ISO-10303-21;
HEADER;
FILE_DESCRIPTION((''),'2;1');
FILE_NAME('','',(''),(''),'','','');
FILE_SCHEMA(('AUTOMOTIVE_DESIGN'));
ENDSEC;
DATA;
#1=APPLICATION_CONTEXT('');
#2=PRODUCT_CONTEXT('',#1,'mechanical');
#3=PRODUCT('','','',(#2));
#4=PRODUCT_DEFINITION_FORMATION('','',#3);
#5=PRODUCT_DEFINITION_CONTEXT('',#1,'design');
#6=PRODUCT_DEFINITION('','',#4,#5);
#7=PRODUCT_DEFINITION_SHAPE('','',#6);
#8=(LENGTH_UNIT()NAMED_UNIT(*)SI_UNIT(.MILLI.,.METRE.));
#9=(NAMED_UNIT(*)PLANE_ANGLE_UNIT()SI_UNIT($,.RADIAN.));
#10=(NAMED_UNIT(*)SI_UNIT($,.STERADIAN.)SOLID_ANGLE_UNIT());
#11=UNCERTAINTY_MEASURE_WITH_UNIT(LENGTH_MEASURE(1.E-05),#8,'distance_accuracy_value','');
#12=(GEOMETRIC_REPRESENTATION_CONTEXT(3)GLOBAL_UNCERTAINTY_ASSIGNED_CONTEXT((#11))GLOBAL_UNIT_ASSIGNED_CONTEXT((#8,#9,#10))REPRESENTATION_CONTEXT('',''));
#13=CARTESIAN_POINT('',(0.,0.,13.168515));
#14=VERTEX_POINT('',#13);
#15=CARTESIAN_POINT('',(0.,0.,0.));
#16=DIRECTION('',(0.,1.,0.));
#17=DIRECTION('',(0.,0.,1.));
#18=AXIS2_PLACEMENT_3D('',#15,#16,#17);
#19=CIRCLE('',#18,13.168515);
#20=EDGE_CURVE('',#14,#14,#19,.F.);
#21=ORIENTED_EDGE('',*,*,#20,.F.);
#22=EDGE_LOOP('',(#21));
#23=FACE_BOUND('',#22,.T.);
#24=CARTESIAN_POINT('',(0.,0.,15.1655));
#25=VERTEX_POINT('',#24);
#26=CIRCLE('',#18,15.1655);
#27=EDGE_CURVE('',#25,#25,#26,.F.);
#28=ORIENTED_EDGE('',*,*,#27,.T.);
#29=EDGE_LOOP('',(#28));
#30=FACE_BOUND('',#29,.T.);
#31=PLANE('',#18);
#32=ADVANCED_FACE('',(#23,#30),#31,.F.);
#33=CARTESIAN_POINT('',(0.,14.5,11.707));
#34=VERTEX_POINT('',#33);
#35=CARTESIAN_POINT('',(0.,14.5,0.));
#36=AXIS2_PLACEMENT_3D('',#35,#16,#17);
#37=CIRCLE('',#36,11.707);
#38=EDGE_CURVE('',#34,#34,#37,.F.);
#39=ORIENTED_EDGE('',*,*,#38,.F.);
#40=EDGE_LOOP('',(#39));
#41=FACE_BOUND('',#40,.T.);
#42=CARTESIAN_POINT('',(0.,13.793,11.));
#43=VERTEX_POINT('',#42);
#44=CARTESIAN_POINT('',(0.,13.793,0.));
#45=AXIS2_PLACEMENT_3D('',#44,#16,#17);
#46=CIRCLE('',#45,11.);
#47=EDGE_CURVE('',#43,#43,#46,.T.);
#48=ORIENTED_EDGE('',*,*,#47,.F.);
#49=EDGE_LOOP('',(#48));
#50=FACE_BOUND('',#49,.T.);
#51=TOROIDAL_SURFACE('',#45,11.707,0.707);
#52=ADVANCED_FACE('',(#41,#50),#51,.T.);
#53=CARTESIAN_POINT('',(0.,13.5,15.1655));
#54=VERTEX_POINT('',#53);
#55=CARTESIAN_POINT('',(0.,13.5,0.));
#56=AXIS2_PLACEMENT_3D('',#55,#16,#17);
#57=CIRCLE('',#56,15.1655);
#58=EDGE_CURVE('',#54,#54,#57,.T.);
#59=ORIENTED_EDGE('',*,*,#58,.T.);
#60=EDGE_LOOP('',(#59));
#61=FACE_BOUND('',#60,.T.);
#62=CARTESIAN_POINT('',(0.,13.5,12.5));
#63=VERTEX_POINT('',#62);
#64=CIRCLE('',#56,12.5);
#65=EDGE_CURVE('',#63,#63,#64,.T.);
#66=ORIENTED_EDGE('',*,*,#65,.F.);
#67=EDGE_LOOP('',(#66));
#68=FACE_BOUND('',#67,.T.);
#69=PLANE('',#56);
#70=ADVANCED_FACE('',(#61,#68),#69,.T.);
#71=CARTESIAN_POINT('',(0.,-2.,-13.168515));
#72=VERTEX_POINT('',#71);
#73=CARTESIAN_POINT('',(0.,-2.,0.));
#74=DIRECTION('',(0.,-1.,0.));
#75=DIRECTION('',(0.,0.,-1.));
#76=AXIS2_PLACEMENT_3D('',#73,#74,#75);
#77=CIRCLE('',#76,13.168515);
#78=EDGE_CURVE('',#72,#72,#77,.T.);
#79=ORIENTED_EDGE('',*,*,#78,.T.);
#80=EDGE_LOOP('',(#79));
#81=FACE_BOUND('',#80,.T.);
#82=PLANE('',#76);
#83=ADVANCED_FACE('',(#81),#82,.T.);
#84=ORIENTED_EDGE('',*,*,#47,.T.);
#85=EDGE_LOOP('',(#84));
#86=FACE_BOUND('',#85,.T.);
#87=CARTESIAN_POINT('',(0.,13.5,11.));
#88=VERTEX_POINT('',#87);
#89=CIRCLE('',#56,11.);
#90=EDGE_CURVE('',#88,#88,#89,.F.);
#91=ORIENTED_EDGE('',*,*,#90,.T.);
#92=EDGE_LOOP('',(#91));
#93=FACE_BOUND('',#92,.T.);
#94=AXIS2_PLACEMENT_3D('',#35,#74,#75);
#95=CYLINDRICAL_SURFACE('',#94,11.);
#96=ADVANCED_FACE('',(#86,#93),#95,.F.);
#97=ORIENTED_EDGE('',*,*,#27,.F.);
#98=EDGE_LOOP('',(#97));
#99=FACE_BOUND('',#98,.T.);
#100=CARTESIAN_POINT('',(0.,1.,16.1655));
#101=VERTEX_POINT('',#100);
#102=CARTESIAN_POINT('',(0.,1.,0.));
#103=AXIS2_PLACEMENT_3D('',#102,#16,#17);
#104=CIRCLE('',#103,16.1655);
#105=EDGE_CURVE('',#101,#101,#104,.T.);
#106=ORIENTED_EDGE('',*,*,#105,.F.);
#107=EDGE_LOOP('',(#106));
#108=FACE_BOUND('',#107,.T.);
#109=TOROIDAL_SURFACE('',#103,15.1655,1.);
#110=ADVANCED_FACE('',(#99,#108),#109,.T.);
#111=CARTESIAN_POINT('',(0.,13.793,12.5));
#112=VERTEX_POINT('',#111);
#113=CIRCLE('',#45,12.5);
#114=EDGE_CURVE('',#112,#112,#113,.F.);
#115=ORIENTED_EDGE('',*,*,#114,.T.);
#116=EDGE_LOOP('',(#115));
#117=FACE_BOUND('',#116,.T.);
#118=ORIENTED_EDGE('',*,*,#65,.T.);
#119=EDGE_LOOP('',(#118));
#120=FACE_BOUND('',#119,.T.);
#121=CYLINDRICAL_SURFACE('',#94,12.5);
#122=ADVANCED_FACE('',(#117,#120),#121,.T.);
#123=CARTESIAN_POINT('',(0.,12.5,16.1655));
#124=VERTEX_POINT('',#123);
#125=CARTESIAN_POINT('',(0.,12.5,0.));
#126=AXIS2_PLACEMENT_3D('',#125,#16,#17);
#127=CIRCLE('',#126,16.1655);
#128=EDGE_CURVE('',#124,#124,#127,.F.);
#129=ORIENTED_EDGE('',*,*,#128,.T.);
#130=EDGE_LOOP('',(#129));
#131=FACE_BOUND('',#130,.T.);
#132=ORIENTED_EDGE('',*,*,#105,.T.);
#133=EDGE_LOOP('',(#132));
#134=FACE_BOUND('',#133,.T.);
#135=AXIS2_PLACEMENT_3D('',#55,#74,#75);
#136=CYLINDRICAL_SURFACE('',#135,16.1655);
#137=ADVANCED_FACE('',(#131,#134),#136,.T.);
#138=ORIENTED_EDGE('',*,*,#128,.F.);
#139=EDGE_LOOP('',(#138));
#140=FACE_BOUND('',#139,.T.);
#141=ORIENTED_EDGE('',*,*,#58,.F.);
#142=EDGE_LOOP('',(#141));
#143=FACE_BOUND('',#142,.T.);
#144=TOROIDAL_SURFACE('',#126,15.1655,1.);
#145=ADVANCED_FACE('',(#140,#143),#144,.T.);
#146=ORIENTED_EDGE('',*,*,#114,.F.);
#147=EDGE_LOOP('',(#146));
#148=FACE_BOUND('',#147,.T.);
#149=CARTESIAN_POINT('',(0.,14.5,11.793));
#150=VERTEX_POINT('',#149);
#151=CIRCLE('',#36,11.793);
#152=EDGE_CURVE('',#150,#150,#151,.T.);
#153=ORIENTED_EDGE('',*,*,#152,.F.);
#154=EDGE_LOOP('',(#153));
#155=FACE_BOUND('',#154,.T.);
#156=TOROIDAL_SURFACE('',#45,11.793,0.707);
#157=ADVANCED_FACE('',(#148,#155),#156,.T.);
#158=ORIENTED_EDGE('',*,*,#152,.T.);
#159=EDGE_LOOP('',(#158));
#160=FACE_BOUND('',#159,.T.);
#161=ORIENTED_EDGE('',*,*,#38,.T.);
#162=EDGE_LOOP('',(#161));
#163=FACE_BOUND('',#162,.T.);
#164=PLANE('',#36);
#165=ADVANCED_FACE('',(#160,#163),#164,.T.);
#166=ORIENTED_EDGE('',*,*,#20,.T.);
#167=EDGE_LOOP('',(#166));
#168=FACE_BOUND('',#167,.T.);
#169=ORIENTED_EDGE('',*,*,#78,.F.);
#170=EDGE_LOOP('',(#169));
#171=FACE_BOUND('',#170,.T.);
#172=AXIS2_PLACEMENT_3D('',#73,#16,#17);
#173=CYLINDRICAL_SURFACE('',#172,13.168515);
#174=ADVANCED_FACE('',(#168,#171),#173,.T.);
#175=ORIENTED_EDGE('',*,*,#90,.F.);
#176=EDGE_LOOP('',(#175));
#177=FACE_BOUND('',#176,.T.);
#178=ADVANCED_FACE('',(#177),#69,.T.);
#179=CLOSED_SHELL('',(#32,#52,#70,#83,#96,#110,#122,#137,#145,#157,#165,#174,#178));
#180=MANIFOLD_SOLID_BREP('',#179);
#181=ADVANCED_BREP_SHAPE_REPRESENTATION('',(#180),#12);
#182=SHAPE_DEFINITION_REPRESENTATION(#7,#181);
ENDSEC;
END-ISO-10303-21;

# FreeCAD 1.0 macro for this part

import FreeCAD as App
import Part
import Sketcher
from FreeCAD import Vector


def edges_at(feature, points):
    """Names of the edges that pass closest to the given points."""
    edges = feature.Shape.Edges
    near = lambda p: min(range(len(edges)), key=lambda i: edges[i].distToShape(Part.Vertex(*p))[0])
    return sorted({f"Edge{near(p) + 1}" for p in points})

doc = App.newDocument("Part")
body = doc.addObject("PartDesign::Body", "Body")

# Sketch on XZ plane
sketch1 = body.newObject("Sketcher::SketchObject", "Sketch")
sketch1.AttachmentSupport = (doc.getObject("XZ_Plane"), [""])
sketch1.MapMode = "FlatFace"
sketch1.addGeometry(Part.Circle(Vector(0, 0, 0), Vector(0, 0, 1), 16), False)
sketch1.addConstraint([
    Sketcher.Constraint("Coincident", 0, 3, -1, 1),
    Sketcher.Constraint("Diameter", 0, 32.331),
])
pad1 = body.newObject("PartDesign::Pad", "Pad")
pad1.Profile = sketch1
pad1.Length = 13.5
pad1.Reversed = True
doc.recompute()

fillet = body.newObject("PartDesign::Fillet", "Fillet")
fillet.Base = (pad1, edges_at(pad1, [(-16.166, 0, 0), (-16.166, 13.5, 0)]))
fillet.Radius = 1

# Sketch on XZ plane
sketch2 = body.newObject("Sketcher::SketchObject", "Sketch001")
sketch2.AttachmentSupport = (doc.getObject("XZ_Plane"), [""])
sketch2.MapMode = "FlatFace"
sketch2.AttachmentOffset = App.Placement(Vector(0, 0, -13.5), App.Rotation())
sketch2.addGeometry([
    Part.Circle(Vector(0, 0, 0), Vector(0, 0, 1), 12),
    Part.Circle(Vector(0, 0, 0), Vector(0, 0, 1), 11),
], False)
sketch2.addConstraint([
    Sketcher.Constraint("Coincident", 0, 3, -1, 1),
    Sketcher.Constraint("Coincident", 1, 3, -1, 1),
    Sketcher.Constraint("Diameter", 0, 25.0),
    Sketcher.Constraint("Diameter", 1, 22.0),
])
pad2 = body.newObject("PartDesign::Pad", "Pad001")
pad2.Profile = sketch2
pad2.Length = 1
pad2.Reversed = True
doc.recompute()

fillet2 = body.newObject("PartDesign::Fillet", "Fillet001")
fillet2.Base = (pad2, edges_at(pad2, [(-12.5, 14.5, 0), (-11, 14.5, 0)]))
fillet2.Radius = 0.707

# Sketch on XZ plane
sketch3 = body.newObject("Sketcher::SketchObject", "Sketch002")
sketch3.AttachmentSupport = (doc.getObject("XZ_Plane"), [""])
sketch3.MapMode = "FlatFace"
sketch3.addGeometry(Part.Circle(Vector(0, 0, 0), Vector(0, 0, 1), 13), False)
sketch3.addConstraint([
    Sketcher.Constraint("Coincident", 0, 3, -1, 1),
    Sketcher.Constraint("Diameter", 0, 26.33703),
])
pad3 = body.newObject("PartDesign::Pad", "Pad002")
pad3.Profile = sketch3
pad3.Length = 2

doc.recompute()
